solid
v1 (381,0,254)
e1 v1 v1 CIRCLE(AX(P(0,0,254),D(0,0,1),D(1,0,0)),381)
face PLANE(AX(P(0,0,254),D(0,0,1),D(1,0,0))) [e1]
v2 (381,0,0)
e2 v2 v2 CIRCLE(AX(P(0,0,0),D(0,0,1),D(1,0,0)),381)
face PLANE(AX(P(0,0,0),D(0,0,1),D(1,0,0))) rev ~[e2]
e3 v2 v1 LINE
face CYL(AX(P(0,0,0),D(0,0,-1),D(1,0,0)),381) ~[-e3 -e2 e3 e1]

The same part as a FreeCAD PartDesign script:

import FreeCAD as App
import Part
import Sketcher

V = App.Vector
Q = App.Units.Quantity

doc = App.newDocument("Part")
body = doc.addObject("PartDesign::Body", "Body")

# Sketch on XY plane
sketch1 = body.newObject("Sketcher::SketchObject", "Sketch")
sketch1.AttachmentSupport = (doc.getObject("XY_Plane"), [""])
sketch1.MapMode = "FlatFace"
sketch1.addGeometry(Part.Circle(V(0, 0, 0), V(0, 0, 1), 381), False)
sketch1.addConstraint([
    Sketcher.Constraint("Coincident", 0, 3, -1, 1),
    Sketcher.Constraint("Diameter", 0, Q("30 in")),
])
pad1 = body.newObject("PartDesign::Pad", "Pad")
pad1.Profile = sketch1
pad1.Length = Q("10 in")

doc.recompute()
